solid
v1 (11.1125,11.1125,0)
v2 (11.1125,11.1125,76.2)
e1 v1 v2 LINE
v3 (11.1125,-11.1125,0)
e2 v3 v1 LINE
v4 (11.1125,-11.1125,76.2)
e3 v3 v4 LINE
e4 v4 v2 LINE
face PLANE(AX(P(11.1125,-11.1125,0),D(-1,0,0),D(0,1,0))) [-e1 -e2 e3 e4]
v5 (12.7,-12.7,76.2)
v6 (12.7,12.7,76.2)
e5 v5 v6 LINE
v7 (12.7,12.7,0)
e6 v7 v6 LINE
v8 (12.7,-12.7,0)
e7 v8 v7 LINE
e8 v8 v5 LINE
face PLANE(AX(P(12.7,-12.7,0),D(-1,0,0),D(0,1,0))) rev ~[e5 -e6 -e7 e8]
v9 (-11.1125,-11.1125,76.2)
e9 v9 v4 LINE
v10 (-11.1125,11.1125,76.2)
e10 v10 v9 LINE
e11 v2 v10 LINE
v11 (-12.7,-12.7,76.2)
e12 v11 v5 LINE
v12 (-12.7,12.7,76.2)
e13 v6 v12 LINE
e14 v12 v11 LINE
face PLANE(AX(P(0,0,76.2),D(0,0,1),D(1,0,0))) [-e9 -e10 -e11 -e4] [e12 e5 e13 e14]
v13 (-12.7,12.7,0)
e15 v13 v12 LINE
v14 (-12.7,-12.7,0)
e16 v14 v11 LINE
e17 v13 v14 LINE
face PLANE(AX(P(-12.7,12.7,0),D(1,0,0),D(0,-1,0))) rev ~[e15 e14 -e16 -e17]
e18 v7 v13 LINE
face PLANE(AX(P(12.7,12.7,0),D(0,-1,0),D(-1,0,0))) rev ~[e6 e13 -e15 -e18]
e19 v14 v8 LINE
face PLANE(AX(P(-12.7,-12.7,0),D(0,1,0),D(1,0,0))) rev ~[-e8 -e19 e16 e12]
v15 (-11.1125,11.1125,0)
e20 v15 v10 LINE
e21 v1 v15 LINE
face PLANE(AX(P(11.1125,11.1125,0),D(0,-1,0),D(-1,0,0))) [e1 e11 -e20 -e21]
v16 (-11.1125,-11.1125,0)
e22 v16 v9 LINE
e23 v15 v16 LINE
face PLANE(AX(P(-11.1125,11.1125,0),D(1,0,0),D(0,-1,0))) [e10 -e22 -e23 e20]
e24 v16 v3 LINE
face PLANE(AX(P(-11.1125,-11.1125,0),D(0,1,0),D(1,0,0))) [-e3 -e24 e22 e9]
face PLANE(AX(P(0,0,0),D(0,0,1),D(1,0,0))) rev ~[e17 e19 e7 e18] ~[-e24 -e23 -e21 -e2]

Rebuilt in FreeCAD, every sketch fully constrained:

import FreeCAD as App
import Part
import Sketcher
from FreeCAD import Vector
Q = App.Units.Quantity


def add_polygon(sketch, points):
    """Adds a closed chain of lines whose ends are joined by coincident constraints."""
    first, n = sketch.GeometryCount, len(points)
    for a, b in zip(points, points[1:] + points[:1]):
        sketch.addGeometry(Part.LineSegment(App.Vector(*a, 0), App.Vector(*b, 0)), False)
    for i in range(n):
        sketch.addConstraint(Sketcher.Constraint("Coincident", first + i, 2, first + (i + 1) % n, 1))

doc = App.newDocument("Part")
params = doc.addObject("Spreadsheet::Sheet", "Params")
for row, (alias, value) in enumerate([
    ("sketch1_width", "1 in"),
    ("sketch1_width2", "0.875 in"),
    ("pad1_length", "3 in"),
], start=1):
    params.set(f"A{row}", alias)
    params.set(f"B{row}", "=" + value)
    params.setAlias(f"B{row}", alias)

body = doc.addObject("PartDesign::Body", "Body")

# Sketch on XY plane
sketch1 = body.newObject("Sketcher::SketchObject", "Sketch")
sketch1.AttachmentSupport = (doc.getObject("XY_Plane"), [""])
sketch1.MapMode = "FlatFace"
add_polygon(sketch1, [(-13, 13), (-13, -13), (13, -13), (13, 13)])  # lines 0-3
add_polygon(sketch1, [(11, -11), (-11, -11), (-11, 11), (11, 11)])  # lines 4-7
sketch1.addConstraint(Sketcher.Constraint("Vertical", 0))
sketch1.addConstraint(Sketcher.Constraint("Horizontal", 1))
sketch1.addConstraint(Sketcher.Constraint("Vertical", 2))
sketch1.addConstraint(Sketcher.Constraint("Horizontal", 3))
sketch1.addConstraint(Sketcher.Constraint("Horizontal", 4))
sketch1.addConstraint(Sketcher.Constraint("Vertical", 5))
sketch1.addConstraint(Sketcher.Constraint("Horizontal", 6))
sketch1.addConstraint(Sketcher.Constraint("Vertical", 7))
sketch1.addConstraint(Sketcher.Constraint("Symmetric", 0, 2, 2, 2, -1, 1))
sketch1.addConstraint(Sketcher.Constraint("Symmetric", 4, 2, 6, 2, -1, 1))
sketch1.addConstraint(Sketcher.Constraint("Equal", 3, 0))
sketch1.addConstraint(Sketcher.Constraint("Equal", 6, 5))
sketch1.addConstraint(Sketcher.Constraint("DistanceX", 1, 1, 1, 2, Q("1 in")))
sketch1.addConstraint(Sketcher.Constraint("DistanceX", 4, 2, 4, 1, Q("0.875 in")))
sketch1.setExpression("Constraints[20]", "Params.sketch1_width")
sketch1.setExpression("Constraints[21]", "Params.sketch1_width2")
pad1 = body.newObject("PartDesign::Pad", "Pad")
pad1.Profile = sketch1
pad1.setExpression("Length", "Params.pad1_length")

doc.recompute()
